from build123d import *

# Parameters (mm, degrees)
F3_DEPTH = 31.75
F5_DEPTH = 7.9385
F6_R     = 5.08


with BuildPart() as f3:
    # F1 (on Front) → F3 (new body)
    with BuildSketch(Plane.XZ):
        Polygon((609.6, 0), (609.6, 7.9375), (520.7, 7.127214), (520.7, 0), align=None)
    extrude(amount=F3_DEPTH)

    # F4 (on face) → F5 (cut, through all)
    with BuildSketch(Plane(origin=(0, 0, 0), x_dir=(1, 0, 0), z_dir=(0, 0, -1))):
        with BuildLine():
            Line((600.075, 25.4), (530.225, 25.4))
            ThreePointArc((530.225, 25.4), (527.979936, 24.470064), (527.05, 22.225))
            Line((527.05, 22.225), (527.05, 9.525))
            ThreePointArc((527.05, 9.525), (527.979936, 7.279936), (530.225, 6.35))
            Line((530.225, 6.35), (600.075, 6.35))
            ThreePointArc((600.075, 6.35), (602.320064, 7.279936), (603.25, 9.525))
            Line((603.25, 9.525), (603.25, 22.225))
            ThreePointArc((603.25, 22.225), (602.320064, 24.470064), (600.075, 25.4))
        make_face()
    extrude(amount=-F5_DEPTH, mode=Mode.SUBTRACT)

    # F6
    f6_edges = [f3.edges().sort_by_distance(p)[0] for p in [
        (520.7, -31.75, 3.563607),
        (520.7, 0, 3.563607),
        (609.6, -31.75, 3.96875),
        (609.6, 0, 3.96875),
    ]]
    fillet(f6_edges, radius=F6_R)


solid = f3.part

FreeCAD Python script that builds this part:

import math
import FreeCAD as App
import Part
import Sketcher
Q = App.Units.Quantity


def edges_at(feature, points):
    """Names of the edges that pass closest to the given points."""
    edges = feature.Shape.Edges
    near = lambda p: min(range(len(edges)), key=lambda i: edges[i].distToShape(Part.Vertex(*p))[0])
    return sorted({f"Edge{near(p) + 1}" for p in points})

doc = App.newDocument("Part")
body = doc.addObject("PartDesign::Body", "Body")

sketch1 = body.newObject("Sketcher::SketchObject", "Sketch")
sketch1.AttachmentSupport = (doc.getObject("XZ_Plane"), [""])
sketch1.MapMode = "FlatFace"
sketch1.addGeometry([
    Part.LineSegment(App.Vector(610, 0, 0), App.Vector(610, 8, 0)),
    Part.LineSegment(App.Vector(610, 8, 0), App.Vector(521, 7, 0)),
    Part.LineSegment(App.Vector(521, 7, 0), App.Vector(521, 0, 0)),
    Part.LineSegment(App.Vector(521, 0, 0), App.Vector(610, 0, 0)),
], False)
sketch1.addConstraint([
    Sketcher.Constraint("Coincident", 0, 2, 1, 1),
    Sketcher.Constraint("Coincident", 1, 2, 2, 1),
    Sketcher.Constraint("Coincident", 2, 2, 3, 1),
    Sketcher.Constraint("Coincident", 3, 2, 0, 1),
    Sketcher.Constraint("Vertical", 0),
    Sketcher.Constraint("Vertical", 2),
    Sketcher.Constraint("Horizontal", 3),
    Sketcher.Constraint("PointOnObject", 2, 2, -1),
    Sketcher.Constraint("DistanceX", 3, 1, 3, 2, Q("3.5 in")),
    Sketcher.Constraint("DistanceX", -1, 1, 0, 2, Q("24 in")),
    Sketcher.Constraint("DistanceY", 0, 1, 0, 2, Q("0.3125 in")),
    Sketcher.Constraint("DistanceY", 2, 2, 2, 1, Q("7.127214 mm")),
])
pad1 = body.newObject("PartDesign::Pad", "Pad")
pad1.Profile = sketch1
pad1.Length = Q("1.25 in")

sketch2 = body.newObject("Sketcher::SketchObject", "Sketch001")
sketch2.AttachmentSupport = (doc.getObject("XY_Plane"), [""])
sketch2.MapMode = "FlatFace"
sketch2.addGeometry([
    Part.LineSegment(App.Vector(600.1, -25.4, 0), App.Vector(530.2, -25.4, 0)),
    Part.ArcOfCircle(Part.Circle(App.Vector(530.2, -22.2, 0), App.Vector(0, 0, 1), 3.2), math.radians(-180), math.radians(-90)),
    Part.LineSegment(App.Vector(527, -22.2, 0), App.Vector(527, -9.5, 0)),
    Part.ArcOfCircle(Part.Circle(App.Vector(530.2, -9.5, 0), App.Vector(0, 0, 1), 3.2), math.radians(90), math.radians(180)),
    Part.LineSegment(App.Vector(530.2, -6.3, 0), App.Vector(600.1, -6.3, 0)),
    Part.ArcOfCircle(Part.Circle(App.Vector(600.1, -9.5, 0), App.Vector(0, 0, 1), 3.2), math.radians(0), math.radians(90)),
    Part.LineSegment(App.Vector(603.2, -9.5, 0), App.Vector(603.2, -22.2, 0)),
    Part.ArcOfCircle(Part.Circle(App.Vector(600.1, -22.2, 0), App.Vector(0, 0, 1), 3.2), math.radians(-90), math.radians(0)),
], False)
sketch2.addConstraint([
    Sketcher.Constraint("Tangent", 0, 2, 1, 2),
    Sketcher.Constraint("Tangent", 1, 1, 2, 1),
    Sketcher.Constraint("Tangent", 2, 2, 3, 2),
    Sketcher.Constraint("Tangent", 3, 1, 4, 1),
    Sketcher.Constraint("Tangent", 4, 2, 5, 2),
    Sketcher.Constraint("Tangent", 5, 1, 6, 1),
    Sketcher.Constraint("Tangent", 6, 2, 7, 2),
    Sketcher.Constraint("Tangent", 7, 1, 0, 1),
    Sketcher.Constraint("Horizontal", 0),
    Sketcher.Constraint("Vertical", 2),
    Sketcher.Constraint("Horizontal", 4),
    Sketcher.Constraint("Vertical", 6),
    Sketcher.Constraint("Equal", 1, 3),
    Sketcher.Constraint("Equal", 3, 5),
    Sketcher.Constraint("Equal", 5, 7),
    Sketcher.Constraint("DistanceY", 2, 1, 2, 2, Q("0.5 in")),
    Sketcher.Constraint("DistanceY", 0, 2, -1, 1, Q("1 in")),
    Sketcher.Constraint("Radius", 1, Q("0.125 in")),
    Sketcher.Constraint("DistanceX", 0, 2, 0, 1, Q("2.75 in")),
    Sketcher.Constraint("DistanceX", -1, 1, 1, 1, Q("20.75 in")),
])
pocket1 = body.newObject("PartDesign::Pocket", "Pocket")
pocket1.Profile = sketch2
pocket1.Type = "ThroughAll"
pocket1.Reversed = True
doc.recompute()

fillet = body.newObject("PartDesign::Fillet", "Fillet")
fillet.Base = (pocket1, edges_at(pocket1, [
    (520.7, -31.75, 3.564),
    (520.7, 0, 3.564),
    (609.6, -31.75, 3.969),
    (609.6, 0, 3.969),
]))
fillet.Radius = Q("0.2 in")

doc.recompute()
